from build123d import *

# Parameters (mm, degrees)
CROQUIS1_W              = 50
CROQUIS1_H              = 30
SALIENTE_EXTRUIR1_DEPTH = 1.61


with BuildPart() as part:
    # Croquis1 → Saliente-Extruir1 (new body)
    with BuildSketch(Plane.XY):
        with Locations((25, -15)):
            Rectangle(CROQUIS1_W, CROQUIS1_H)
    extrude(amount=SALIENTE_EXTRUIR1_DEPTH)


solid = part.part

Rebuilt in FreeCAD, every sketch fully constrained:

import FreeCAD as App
import Part
import Sketcher

V = App.Vector

doc = App.newDocument("Part")
params = doc.addObject("Spreadsheet::Sheet", "Params")
for row, (alias, value) in enumerate([
    ("sketch1_width", "50 mm"),
    ("sketch1_height", "30 mm"),
    ("pad1_length", "1.61 mm"),
], start=1):
    params.set(f"A{row}", alias)
    params.set(f"B{row}", "=" + value)
    params.setAlias(f"B{row}", alias)

body = doc.addObject("PartDesign::Body", "Body")

sketch1 = doc.addObject("Sketcher::SketchObject", "Sketch")
body.addObject(sketch1)
sketch1.AttachmentSupport = (doc.XY_Plane, [""])
sketch1.MapMode = "FlatFace"
sketch1.addGeometry(Part.LineSegment(V(0, 0, 0), V(0, -30, 0)), False)
sketch1.addGeometry(Part.LineSegment(V(0, -30, 0), V(50, -30, 0)), False)
sketch1.addGeometry(Part.LineSegment(V(50, -30, 0), V(50, 0, 0)), False)
sketch1.addGeometry(Part.LineSegment(V(50, 0, 0), V(0, 0, 0)), False)
sketch1.addConstraint(Sketcher.Constraint("Coincident", 0, 2, 1, 1))
sketch1.addConstraint(Sketcher.Constraint("Coincident", 1, 2, 2, 1))
sketch1.addConstraint(Sketcher.Constraint("Coincident", 2, 2, 3, 1))
sketch1.addConstraint(Sketcher.Constraint("Coincident", 3, 2, 0, 1))
sketch1.addConstraint(Sketcher.Constraint("Vertical", 0))
sketch1.addConstraint(Sketcher.Constraint("Horizontal", 1))
sketch1.addConstraint(Sketcher.Constraint("Vertical", 2))
sketch1.addConstraint(Sketcher.Constraint("Horizontal", 3))
sketch1.addConstraint(Sketcher.Constraint("Coincident", 3, 2, -1, 1))
sketch1.addConstraint(Sketcher.Constraint("DistanceX", 1, 1, 1, 2, 50.0))
sketch1.addConstraint(Sketcher.Constraint("DistanceY", 0, 2, 0, 1, 30.0))
sketch1.setExpression("Constraints[9]", "Params.sketch1_width")
sketch1.setExpression("Constraints[10]", "Params.sketch1_height")
pad1 = doc.addObject("PartDesign::Pad", "Pad")
body.addObject(pad1)
pad1.Profile = sketch1
pad1.setExpression("Length", "Params.pad1_length")

doc.recompute()
